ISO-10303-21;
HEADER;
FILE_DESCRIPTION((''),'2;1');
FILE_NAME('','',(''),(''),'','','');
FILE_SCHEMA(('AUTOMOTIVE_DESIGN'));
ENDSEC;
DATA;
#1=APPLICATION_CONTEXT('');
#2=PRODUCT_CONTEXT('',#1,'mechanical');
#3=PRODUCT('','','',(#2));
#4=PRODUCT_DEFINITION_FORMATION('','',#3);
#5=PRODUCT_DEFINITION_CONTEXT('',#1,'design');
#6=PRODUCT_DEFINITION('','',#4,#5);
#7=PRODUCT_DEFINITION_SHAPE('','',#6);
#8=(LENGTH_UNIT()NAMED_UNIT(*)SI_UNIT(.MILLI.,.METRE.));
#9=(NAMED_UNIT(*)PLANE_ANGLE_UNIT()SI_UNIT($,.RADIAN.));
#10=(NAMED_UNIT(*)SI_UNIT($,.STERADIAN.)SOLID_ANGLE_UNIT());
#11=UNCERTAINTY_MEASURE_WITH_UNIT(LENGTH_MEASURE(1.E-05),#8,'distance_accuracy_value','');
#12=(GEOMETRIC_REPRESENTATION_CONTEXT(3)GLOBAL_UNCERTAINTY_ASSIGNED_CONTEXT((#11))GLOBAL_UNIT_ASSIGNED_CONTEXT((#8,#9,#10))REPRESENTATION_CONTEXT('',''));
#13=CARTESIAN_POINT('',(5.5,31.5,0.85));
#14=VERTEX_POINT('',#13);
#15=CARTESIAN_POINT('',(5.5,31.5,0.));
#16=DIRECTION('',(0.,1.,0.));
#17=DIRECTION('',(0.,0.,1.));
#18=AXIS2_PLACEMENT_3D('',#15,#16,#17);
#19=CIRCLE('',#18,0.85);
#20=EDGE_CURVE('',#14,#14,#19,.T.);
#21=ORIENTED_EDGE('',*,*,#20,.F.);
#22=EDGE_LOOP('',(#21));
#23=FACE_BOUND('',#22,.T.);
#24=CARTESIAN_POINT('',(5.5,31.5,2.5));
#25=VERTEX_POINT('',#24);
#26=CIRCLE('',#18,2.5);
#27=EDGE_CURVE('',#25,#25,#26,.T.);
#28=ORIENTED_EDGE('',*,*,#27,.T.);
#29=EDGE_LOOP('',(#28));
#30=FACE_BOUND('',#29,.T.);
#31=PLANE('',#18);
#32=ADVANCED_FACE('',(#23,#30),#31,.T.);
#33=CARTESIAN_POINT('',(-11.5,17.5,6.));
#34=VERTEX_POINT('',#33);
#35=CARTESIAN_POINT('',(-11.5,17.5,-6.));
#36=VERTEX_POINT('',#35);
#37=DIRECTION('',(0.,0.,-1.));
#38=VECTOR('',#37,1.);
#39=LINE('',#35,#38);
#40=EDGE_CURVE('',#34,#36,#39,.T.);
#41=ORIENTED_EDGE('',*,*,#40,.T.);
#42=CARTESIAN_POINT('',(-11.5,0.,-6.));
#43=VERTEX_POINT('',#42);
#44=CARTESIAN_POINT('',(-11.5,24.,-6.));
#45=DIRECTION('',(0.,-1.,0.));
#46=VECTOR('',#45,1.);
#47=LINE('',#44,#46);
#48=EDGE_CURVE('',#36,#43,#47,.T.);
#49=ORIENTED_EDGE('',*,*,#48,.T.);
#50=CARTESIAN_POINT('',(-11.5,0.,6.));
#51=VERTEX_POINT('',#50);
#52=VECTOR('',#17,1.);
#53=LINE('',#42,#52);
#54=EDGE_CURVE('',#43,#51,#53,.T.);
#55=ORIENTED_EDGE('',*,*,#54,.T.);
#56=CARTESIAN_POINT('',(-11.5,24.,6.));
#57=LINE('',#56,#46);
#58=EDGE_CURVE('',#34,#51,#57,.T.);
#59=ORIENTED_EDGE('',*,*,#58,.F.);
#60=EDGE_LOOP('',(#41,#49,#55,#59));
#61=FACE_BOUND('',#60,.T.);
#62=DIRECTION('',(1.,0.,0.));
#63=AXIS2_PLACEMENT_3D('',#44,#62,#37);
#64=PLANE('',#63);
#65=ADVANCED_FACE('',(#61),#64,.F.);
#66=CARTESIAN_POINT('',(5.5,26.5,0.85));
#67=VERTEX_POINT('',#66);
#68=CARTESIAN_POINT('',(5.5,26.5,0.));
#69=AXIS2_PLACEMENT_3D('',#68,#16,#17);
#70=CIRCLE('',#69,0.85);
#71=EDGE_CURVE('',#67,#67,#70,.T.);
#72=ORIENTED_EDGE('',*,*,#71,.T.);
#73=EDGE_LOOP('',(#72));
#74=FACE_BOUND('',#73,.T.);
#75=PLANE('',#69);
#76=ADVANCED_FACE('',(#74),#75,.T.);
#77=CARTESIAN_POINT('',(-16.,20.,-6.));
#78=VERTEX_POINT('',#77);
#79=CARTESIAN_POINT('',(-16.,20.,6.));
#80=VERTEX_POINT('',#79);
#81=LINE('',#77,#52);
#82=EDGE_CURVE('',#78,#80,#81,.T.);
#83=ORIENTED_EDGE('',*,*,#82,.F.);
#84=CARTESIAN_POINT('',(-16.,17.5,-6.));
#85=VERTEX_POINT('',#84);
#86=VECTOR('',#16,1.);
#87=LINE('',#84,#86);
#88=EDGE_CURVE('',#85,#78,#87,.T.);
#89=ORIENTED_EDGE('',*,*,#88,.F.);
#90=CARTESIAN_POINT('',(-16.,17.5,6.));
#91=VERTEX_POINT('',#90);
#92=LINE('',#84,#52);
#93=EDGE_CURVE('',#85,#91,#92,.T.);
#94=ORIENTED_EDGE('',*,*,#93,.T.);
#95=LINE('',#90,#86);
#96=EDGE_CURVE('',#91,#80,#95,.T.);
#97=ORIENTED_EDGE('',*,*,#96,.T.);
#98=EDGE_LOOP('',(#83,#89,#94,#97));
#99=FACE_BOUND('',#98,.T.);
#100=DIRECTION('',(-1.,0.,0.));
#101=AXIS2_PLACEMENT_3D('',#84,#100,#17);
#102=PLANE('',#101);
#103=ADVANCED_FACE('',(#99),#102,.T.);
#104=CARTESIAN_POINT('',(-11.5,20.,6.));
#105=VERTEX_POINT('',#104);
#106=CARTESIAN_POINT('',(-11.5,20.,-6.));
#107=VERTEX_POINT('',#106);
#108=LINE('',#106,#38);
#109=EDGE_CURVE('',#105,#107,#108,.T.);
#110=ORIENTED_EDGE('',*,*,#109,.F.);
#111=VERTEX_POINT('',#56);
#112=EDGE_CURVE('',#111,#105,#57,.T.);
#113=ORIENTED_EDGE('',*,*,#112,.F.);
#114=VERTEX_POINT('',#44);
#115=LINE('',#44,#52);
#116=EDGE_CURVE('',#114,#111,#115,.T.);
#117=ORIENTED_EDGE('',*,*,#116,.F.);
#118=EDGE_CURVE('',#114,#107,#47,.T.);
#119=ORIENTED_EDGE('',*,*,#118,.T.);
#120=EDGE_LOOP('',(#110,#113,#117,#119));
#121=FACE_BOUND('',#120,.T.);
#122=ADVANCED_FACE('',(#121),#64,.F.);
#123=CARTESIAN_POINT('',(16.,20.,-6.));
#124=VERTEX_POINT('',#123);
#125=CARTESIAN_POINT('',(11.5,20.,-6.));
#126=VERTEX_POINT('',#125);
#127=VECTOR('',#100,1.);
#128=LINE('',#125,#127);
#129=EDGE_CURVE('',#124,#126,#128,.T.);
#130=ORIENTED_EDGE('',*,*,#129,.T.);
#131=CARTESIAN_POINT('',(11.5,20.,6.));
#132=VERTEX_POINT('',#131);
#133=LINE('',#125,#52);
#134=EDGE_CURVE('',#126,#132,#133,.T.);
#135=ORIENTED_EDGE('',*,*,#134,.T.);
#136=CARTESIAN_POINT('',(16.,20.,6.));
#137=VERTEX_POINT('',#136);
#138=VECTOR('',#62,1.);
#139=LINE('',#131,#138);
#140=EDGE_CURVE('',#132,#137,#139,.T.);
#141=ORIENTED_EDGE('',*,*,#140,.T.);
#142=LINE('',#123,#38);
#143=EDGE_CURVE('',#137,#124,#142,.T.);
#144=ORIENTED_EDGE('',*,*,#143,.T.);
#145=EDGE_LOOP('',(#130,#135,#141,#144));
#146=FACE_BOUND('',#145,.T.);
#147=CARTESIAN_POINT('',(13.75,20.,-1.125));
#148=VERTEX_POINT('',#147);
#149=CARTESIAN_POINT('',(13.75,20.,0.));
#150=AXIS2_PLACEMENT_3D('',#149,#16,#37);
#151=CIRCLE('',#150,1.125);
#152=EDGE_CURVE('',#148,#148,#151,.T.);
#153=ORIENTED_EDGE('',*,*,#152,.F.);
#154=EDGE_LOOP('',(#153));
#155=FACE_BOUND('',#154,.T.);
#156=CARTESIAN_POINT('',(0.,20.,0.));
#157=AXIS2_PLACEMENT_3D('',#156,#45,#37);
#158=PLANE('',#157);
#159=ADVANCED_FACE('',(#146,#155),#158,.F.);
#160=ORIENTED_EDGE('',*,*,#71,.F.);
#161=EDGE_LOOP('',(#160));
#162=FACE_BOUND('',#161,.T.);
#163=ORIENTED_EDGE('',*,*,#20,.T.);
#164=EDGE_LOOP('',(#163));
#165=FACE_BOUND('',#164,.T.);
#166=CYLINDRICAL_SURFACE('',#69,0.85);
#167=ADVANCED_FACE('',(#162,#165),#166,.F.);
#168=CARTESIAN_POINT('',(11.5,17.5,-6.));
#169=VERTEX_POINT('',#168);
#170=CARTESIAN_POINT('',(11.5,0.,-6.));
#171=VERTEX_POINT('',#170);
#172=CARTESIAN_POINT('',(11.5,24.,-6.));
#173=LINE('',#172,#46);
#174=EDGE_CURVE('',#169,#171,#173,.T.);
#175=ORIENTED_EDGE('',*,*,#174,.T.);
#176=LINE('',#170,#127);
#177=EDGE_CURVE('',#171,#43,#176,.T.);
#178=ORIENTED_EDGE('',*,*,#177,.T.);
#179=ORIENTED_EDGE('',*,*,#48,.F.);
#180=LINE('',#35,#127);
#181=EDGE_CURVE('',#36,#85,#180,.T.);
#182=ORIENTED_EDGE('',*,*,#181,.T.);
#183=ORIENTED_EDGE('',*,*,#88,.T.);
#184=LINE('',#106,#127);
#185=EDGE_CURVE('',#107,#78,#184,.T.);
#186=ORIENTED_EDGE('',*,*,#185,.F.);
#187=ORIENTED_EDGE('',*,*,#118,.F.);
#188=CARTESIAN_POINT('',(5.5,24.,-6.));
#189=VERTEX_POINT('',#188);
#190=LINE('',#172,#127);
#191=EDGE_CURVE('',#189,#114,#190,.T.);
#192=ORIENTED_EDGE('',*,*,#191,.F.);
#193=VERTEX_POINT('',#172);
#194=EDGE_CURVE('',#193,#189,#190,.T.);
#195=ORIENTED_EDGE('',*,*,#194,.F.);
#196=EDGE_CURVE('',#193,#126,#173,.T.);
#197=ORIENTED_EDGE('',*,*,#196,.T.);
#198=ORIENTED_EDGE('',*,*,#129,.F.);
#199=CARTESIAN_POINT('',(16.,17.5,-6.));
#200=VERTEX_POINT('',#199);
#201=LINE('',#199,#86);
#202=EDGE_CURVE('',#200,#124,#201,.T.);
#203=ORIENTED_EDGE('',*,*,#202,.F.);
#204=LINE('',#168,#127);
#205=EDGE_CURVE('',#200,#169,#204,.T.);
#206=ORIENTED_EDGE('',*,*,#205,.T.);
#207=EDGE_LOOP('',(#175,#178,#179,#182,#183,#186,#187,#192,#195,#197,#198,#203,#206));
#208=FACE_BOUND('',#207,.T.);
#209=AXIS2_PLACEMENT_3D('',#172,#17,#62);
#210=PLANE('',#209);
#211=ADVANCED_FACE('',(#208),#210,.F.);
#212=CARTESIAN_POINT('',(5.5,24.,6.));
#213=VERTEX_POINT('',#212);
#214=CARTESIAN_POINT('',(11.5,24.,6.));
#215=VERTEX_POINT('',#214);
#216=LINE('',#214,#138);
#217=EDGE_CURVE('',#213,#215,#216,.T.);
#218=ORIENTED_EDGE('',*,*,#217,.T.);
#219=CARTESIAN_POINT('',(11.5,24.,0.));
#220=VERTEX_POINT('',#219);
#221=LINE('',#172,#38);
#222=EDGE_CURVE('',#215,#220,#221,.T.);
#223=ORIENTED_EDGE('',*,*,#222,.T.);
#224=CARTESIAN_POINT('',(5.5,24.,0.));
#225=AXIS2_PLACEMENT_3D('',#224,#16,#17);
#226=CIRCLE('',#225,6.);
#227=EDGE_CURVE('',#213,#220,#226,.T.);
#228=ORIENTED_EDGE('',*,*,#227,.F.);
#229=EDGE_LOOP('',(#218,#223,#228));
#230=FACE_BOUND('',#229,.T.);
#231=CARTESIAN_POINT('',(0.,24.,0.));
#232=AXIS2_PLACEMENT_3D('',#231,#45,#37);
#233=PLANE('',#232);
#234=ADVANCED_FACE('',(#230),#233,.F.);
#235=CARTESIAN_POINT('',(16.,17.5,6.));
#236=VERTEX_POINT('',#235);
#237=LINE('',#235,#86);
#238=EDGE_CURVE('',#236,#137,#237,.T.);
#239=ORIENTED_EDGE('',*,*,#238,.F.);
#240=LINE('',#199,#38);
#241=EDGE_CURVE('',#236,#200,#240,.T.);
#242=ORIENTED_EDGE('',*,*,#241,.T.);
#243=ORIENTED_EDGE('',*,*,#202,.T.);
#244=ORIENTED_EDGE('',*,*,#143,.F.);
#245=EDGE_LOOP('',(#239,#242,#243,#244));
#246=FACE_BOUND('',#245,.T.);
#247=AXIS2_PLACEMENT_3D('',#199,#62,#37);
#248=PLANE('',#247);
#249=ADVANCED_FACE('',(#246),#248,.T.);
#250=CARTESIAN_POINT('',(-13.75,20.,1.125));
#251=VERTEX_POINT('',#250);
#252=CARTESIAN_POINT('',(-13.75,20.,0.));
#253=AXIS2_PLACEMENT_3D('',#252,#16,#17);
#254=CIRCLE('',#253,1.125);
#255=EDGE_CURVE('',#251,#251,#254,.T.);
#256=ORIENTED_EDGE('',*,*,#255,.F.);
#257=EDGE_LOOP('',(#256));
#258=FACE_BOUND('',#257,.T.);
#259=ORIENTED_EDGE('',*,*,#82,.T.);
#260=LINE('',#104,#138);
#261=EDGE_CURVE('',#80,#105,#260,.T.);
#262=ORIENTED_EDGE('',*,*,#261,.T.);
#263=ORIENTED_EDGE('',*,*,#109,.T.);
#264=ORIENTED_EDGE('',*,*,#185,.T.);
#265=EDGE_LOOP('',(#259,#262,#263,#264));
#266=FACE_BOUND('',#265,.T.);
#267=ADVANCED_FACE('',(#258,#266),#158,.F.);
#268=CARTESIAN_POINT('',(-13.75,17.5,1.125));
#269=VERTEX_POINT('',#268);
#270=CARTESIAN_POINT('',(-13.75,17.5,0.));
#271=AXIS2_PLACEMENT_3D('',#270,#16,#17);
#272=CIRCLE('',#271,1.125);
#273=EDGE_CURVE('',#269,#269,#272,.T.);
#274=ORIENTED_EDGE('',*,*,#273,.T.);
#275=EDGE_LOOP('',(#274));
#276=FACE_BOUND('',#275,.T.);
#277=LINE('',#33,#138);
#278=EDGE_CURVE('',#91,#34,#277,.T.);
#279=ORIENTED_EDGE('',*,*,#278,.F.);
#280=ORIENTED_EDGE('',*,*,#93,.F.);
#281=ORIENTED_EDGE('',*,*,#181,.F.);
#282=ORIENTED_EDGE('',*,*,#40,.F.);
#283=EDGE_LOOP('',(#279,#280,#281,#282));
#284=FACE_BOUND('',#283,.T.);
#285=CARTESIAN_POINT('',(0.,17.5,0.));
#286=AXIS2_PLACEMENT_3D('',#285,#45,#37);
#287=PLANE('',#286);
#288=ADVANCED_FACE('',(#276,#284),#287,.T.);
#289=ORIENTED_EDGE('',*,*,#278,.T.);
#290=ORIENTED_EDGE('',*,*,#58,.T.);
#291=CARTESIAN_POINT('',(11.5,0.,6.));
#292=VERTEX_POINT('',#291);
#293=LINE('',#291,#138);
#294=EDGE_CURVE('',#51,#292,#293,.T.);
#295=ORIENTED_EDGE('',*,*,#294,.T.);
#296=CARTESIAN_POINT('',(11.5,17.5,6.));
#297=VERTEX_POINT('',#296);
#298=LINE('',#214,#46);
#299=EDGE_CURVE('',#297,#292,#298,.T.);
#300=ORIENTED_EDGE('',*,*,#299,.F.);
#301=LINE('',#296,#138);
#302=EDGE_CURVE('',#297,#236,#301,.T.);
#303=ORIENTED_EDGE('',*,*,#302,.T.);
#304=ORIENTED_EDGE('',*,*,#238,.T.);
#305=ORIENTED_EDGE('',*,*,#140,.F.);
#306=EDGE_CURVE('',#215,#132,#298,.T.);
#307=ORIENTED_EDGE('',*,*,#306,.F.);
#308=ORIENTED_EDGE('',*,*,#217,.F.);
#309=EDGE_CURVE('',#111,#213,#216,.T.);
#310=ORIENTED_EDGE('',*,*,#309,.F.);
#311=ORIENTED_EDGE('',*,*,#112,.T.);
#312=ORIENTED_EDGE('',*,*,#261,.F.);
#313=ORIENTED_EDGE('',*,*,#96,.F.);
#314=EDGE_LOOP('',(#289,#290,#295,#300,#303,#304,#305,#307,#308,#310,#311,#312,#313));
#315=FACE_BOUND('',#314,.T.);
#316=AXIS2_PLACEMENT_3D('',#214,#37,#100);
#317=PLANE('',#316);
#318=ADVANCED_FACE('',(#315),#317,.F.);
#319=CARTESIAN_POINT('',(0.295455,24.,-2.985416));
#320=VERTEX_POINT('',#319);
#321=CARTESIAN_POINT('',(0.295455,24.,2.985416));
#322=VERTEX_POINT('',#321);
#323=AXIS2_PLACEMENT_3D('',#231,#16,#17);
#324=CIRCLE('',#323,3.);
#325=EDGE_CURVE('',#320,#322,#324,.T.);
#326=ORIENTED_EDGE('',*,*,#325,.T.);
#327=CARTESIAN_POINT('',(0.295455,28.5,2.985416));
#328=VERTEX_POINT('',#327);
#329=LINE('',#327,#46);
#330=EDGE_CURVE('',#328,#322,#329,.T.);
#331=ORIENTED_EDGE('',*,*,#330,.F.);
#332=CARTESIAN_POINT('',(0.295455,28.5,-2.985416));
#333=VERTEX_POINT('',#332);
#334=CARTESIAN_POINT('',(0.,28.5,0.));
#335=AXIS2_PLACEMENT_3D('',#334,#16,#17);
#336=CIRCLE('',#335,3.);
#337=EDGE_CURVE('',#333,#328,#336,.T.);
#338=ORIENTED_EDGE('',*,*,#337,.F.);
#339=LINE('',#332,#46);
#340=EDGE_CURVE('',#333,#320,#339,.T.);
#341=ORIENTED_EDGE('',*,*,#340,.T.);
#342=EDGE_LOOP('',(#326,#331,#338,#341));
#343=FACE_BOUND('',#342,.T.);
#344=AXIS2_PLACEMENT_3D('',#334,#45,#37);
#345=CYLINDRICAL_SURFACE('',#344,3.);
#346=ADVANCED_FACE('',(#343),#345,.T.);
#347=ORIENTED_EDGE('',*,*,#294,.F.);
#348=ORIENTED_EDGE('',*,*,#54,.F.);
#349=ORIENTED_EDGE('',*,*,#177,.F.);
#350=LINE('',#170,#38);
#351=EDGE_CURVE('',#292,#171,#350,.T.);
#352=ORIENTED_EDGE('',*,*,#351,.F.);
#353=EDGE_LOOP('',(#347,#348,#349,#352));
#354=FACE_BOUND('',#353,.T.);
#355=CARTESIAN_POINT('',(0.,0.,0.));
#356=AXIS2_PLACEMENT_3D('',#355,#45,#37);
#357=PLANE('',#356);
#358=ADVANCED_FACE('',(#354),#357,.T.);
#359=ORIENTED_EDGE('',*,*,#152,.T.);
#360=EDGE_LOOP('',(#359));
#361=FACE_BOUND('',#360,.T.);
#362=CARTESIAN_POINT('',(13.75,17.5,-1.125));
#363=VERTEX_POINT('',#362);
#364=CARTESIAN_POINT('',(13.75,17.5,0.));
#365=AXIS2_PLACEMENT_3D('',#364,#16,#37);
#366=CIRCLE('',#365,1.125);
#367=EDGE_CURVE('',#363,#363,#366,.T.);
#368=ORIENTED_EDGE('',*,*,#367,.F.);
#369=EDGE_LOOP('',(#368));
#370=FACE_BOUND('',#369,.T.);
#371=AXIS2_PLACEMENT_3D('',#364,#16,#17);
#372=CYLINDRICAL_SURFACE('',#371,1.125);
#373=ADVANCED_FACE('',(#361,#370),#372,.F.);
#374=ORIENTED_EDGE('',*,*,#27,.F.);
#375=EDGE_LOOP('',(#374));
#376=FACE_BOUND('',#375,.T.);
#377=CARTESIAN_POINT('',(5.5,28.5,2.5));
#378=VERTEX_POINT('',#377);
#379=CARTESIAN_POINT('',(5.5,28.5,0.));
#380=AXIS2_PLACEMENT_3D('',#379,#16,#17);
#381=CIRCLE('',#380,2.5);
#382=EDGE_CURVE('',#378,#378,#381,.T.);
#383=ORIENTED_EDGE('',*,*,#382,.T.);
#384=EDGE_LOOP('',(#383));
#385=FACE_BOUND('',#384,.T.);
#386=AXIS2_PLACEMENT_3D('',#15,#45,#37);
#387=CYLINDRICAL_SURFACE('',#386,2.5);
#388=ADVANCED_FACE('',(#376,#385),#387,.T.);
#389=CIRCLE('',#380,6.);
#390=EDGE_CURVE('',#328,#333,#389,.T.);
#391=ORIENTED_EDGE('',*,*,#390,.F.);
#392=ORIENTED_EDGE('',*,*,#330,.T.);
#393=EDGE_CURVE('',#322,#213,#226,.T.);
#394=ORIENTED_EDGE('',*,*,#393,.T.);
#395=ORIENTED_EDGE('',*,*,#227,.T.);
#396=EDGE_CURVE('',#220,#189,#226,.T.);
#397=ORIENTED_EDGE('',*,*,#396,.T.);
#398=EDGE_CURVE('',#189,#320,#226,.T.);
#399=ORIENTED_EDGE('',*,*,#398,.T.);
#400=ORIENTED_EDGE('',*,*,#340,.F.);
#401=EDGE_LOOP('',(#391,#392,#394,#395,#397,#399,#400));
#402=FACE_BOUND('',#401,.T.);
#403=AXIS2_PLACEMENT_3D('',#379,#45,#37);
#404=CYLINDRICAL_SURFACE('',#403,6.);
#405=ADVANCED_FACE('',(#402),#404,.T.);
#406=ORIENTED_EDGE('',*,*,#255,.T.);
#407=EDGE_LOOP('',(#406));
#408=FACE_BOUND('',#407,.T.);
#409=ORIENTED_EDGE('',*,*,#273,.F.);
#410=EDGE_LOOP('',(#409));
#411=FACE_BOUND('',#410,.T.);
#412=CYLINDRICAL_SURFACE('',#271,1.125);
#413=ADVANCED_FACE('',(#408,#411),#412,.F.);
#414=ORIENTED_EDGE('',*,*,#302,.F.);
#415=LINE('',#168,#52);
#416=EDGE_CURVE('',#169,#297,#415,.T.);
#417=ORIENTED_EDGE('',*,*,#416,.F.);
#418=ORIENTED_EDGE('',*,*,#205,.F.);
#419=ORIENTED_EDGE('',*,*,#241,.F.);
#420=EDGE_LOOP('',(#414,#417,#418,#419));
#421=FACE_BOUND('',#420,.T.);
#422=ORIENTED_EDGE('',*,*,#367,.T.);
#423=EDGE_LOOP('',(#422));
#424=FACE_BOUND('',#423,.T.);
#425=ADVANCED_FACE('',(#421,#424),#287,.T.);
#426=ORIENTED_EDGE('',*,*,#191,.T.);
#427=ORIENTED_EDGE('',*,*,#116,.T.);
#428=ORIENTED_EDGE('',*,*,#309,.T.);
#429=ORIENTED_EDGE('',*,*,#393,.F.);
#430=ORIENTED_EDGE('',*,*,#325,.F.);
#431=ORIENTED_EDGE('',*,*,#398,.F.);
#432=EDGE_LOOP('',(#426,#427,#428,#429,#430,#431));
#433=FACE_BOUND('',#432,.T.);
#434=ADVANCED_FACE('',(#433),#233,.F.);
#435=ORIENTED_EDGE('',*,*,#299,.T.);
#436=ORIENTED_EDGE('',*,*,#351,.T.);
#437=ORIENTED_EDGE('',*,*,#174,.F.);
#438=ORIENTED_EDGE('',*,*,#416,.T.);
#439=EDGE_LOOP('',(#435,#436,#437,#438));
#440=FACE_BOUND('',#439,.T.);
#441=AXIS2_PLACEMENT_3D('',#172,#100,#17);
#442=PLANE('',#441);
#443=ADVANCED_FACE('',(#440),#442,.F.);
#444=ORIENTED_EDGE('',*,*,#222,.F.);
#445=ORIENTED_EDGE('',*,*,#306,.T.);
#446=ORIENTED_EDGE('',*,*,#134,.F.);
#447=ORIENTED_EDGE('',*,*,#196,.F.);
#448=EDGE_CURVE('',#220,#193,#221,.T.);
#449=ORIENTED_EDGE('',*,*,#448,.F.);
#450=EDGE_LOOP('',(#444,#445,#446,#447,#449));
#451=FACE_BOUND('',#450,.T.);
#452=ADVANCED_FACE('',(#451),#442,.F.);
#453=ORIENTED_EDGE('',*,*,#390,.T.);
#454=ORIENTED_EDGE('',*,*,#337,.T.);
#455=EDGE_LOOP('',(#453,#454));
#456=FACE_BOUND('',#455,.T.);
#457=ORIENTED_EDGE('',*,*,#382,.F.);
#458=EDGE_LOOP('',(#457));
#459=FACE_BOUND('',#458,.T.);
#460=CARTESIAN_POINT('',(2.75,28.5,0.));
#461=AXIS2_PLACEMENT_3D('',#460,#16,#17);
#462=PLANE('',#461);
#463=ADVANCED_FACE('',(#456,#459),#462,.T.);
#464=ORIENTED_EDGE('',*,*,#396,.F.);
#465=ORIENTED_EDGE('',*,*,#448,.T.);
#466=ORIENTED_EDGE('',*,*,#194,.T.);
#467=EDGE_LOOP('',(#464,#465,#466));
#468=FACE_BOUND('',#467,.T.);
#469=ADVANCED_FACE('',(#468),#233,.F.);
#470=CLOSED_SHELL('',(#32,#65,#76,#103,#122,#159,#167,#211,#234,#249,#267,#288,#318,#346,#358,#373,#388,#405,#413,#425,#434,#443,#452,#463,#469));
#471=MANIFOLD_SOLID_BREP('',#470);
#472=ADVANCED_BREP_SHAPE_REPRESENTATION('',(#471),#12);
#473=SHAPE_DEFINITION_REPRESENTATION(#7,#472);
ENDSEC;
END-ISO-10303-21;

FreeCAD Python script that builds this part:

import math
import FreeCAD as App
import Part
import Sketcher
from FreeCAD import Vector
Q = App.Units.Quantity


def add_polygon(sketch, points):
    """Adds a closed chain of lines whose ends are joined by coincident constraints."""
    first, n = sketch.GeometryCount, len(points)
    for a, b in zip(points, points[1:] + points[:1]):
        sketch.addGeometry(Part.LineSegment(App.Vector(*a, 0), App.Vector(*b, 0)), False)
    for i in range(n):
        sketch.addConstraint(Sketcher.Constraint("Coincident", first + i, 2, first + (i + 1) % n, 1))

doc = App.newDocument("Part")
body = doc.addObject("PartDesign::Body", "Body")

sketch1 = body.newObject("Sketcher::SketchObject", "Sketch")
sketch1.AttachmentSupport = (doc.getObject("XZ_Plane"), [""])
sketch1.MapMode = "FlatFace"
add_polygon(sketch1, [(-12, -6), (-12, 6), (12, 6), (12, -6)])
sketch1.addConstraint([
    Sketcher.Constraint("Vertical", 0),
    Sketcher.Constraint("Horizontal", 1),
    Sketcher.Constraint("Vertical", 2),
    Sketcher.Constraint("Horizontal", 3),
    Sketcher.Constraint("Symmetric", 0, 2, 2, 2, -1, 1),
    Sketcher.Constraint("DistanceX", 1, 1, 1, 2, Q("23 mm")),
    Sketcher.Constraint("DistanceY", 0, 1, 0, 2, Q("12 mm")),
])
pad1 = body.newObject("PartDesign::Pad", "Pad")
pad1.Profile = sketch1
pad1.Length = 24
pad1.Reversed = True

sketch2 = body.newObject("Sketcher::SketchObject", "Sketch001")
sketch2.AttachmentSupport = (doc.getObject("XZ_Plane"), [""])
sketch2.MapMode = "FlatFace"
sketch2.AttachmentOffset = App.Placement(Vector(0, 0, -24), App.Rotation())
sketch2.addGeometry([
    Part.ArcOfCircle(Part.Circle(Vector(0, 0, 0), Vector(0, 0, 1), 3), math.radians(84), math.radians(276)),
    Part.ArcOfCircle(Part.Circle(Vector(5.5, 0, 0), Vector(0, 0, 1), 6), math.radians(-150), math.radians(150)),
], False)
sketch2.addConstraint([
    Sketcher.Constraint("Coincident", 0, 1, 1, 2),
    Sketcher.Constraint("Coincident", 1, 1, 0, 2),
    Sketcher.Constraint("Coincident", 0, 3, -1, 1),
    Sketcher.Constraint("PointOnObject", 1, 3, -1),
    Sketcher.Constraint("Radius", 0, Q("3 mm")),
    Sketcher.Constraint("Radius", 1, Q("6 mm")),
    Sketcher.Constraint("DistanceX", -1, 1, 1, 3, Q("5.5 mm")),
])
pad2 = body.newObject("PartDesign::Pad", "Pad001")
pad2.Profile = sketch2
pad2.Length = 4.5
pad2.Reversed = True

sketch3 = body.newObject("Sketcher::SketchObject", "Sketch002")
sketch3.AttachmentSupport = (doc.getObject("XZ_Plane"), [""])
sketch3.MapMode = "FlatFace"
sketch3.AttachmentOffset = App.Placement(Vector(0, 0, -28.5), App.Rotation())
sketch3.addGeometry(Part.Circle(Vector(5.5, 0, 0), Vector(0, 0, 1), 2.5), False)
sketch3.addConstraint([
    Sketcher.Constraint("PointOnObject", 0, 3, -1),
    Sketcher.Constraint("Diameter", 0, Q("5 mm")),
    Sketcher.Constraint("DistanceX", -1, 1, 0, 3, Q("5.5 mm")),
])
pad3 = body.newObject("PartDesign::Pad", "Pad002")
pad3.Profile = sketch3
pad3.Length = 3
pad3.Reversed = True

sketch4 = body.newObject("Sketcher::SketchObject", "Sketch003")
sketch4.AttachmentSupport = (doc.getObject("XZ_Plane"), [""])
sketch4.MapMode = "FlatFace"
sketch4.AttachmentOffset = App.Placement(Vector(0, 0, -31.5), App.Rotation())
sketch4.addGeometry(Part.Circle(Vector(5.5, 0, 0), Vector(0, 0, 1), 0.8), False)
sketch4.addConstraint([
    Sketcher.Constraint("PointOnObject", 0, 3, -1),
    Sketcher.Constraint("Diameter", 0, Q("1.7 mm")),
    Sketcher.Constraint("DistanceX", -1, 1, 0, 3, Q("5.5 mm")),
])
pocket1 = body.newObject("PartDesign::Pocket", "Pocket")
pocket1.Profile = sketch4
pocket1.Length = 5
pocket1.Reversed = True

sketch5 = body.newObject("Sketcher::SketchObject", "Sketch004")
sketch5.AttachmentSupport = (doc.getObject("XZ_Plane"), [""])
sketch5.MapMode = "FlatFace"
sketch5.AttachmentOffset = App.Placement(Vector(0, 0, -20), App.Rotation())
add_polygon(sketch5, [(-16, -6), (-16, 6), (-11.5, 6), (-11.5, -6)])
sketch5.addGeometry(Part.Circle(Vector(-13.8, 0, 0), Vector(0, 0, 1), 1.1), False)
add_polygon(sketch5, [(11.5, -6), (11.5, 6), (16, 6), (16, -6)])
sketch5.addGeometry(Part.Circle(Vector(13.8, 0, 0), Vector(0, 0, 1), 1.1), False)
sketch5.addConstraint([
    Sketcher.Constraint("Vertical", 0),
    Sketcher.Constraint("Horizontal", 1),
    Sketcher.Constraint("Vertical", 2),
    Sketcher.Constraint("Horizontal", 3),
    Sketcher.Constraint("Vertical", 5),
    Sketcher.Constraint("Horizontal", 6),
    Sketcher.Constraint("Vertical", 7),
    Sketcher.Constraint("Horizontal", 8),
    Sketcher.Constraint("Equal", 4, 9),
    Sketcher.Constraint("Symmetric", 4, 3, 9, 3, -1, 1),
    Sketcher.Constraint("Symmetric", 2, 2, 5, 2, -1, 1),
    Sketcher.Constraint("Symmetric", 0, 2, 7, 2, -1, 1),
    Sketcher.Constraint("PointOnObject", 4, 3, -1),
    Sketcher.Constraint("Horizontal", 1, 2, 5, 2),
    Sketcher.Constraint("Diameter", 4, Q("2.25 mm")),
    Sketcher.Constraint("DistanceY", 0, 1, 0, 2, Q("12 mm")),
    Sketcher.Constraint("DistanceX", 1, 1, 1, 2, Q("4.5 mm")),
    Sketcher.Constraint("DistanceX", 0, 2, -1, 1, Q("16 mm")),
    Sketcher.Constraint("DistanceX", 4, 3, 9, 3, Q("27.5 mm")),
])
pad4 = body.newObject("PartDesign::Pad", "Pad003")
pad4.Profile = sketch5
pad4.Length = 2.5

doc.recompute()
